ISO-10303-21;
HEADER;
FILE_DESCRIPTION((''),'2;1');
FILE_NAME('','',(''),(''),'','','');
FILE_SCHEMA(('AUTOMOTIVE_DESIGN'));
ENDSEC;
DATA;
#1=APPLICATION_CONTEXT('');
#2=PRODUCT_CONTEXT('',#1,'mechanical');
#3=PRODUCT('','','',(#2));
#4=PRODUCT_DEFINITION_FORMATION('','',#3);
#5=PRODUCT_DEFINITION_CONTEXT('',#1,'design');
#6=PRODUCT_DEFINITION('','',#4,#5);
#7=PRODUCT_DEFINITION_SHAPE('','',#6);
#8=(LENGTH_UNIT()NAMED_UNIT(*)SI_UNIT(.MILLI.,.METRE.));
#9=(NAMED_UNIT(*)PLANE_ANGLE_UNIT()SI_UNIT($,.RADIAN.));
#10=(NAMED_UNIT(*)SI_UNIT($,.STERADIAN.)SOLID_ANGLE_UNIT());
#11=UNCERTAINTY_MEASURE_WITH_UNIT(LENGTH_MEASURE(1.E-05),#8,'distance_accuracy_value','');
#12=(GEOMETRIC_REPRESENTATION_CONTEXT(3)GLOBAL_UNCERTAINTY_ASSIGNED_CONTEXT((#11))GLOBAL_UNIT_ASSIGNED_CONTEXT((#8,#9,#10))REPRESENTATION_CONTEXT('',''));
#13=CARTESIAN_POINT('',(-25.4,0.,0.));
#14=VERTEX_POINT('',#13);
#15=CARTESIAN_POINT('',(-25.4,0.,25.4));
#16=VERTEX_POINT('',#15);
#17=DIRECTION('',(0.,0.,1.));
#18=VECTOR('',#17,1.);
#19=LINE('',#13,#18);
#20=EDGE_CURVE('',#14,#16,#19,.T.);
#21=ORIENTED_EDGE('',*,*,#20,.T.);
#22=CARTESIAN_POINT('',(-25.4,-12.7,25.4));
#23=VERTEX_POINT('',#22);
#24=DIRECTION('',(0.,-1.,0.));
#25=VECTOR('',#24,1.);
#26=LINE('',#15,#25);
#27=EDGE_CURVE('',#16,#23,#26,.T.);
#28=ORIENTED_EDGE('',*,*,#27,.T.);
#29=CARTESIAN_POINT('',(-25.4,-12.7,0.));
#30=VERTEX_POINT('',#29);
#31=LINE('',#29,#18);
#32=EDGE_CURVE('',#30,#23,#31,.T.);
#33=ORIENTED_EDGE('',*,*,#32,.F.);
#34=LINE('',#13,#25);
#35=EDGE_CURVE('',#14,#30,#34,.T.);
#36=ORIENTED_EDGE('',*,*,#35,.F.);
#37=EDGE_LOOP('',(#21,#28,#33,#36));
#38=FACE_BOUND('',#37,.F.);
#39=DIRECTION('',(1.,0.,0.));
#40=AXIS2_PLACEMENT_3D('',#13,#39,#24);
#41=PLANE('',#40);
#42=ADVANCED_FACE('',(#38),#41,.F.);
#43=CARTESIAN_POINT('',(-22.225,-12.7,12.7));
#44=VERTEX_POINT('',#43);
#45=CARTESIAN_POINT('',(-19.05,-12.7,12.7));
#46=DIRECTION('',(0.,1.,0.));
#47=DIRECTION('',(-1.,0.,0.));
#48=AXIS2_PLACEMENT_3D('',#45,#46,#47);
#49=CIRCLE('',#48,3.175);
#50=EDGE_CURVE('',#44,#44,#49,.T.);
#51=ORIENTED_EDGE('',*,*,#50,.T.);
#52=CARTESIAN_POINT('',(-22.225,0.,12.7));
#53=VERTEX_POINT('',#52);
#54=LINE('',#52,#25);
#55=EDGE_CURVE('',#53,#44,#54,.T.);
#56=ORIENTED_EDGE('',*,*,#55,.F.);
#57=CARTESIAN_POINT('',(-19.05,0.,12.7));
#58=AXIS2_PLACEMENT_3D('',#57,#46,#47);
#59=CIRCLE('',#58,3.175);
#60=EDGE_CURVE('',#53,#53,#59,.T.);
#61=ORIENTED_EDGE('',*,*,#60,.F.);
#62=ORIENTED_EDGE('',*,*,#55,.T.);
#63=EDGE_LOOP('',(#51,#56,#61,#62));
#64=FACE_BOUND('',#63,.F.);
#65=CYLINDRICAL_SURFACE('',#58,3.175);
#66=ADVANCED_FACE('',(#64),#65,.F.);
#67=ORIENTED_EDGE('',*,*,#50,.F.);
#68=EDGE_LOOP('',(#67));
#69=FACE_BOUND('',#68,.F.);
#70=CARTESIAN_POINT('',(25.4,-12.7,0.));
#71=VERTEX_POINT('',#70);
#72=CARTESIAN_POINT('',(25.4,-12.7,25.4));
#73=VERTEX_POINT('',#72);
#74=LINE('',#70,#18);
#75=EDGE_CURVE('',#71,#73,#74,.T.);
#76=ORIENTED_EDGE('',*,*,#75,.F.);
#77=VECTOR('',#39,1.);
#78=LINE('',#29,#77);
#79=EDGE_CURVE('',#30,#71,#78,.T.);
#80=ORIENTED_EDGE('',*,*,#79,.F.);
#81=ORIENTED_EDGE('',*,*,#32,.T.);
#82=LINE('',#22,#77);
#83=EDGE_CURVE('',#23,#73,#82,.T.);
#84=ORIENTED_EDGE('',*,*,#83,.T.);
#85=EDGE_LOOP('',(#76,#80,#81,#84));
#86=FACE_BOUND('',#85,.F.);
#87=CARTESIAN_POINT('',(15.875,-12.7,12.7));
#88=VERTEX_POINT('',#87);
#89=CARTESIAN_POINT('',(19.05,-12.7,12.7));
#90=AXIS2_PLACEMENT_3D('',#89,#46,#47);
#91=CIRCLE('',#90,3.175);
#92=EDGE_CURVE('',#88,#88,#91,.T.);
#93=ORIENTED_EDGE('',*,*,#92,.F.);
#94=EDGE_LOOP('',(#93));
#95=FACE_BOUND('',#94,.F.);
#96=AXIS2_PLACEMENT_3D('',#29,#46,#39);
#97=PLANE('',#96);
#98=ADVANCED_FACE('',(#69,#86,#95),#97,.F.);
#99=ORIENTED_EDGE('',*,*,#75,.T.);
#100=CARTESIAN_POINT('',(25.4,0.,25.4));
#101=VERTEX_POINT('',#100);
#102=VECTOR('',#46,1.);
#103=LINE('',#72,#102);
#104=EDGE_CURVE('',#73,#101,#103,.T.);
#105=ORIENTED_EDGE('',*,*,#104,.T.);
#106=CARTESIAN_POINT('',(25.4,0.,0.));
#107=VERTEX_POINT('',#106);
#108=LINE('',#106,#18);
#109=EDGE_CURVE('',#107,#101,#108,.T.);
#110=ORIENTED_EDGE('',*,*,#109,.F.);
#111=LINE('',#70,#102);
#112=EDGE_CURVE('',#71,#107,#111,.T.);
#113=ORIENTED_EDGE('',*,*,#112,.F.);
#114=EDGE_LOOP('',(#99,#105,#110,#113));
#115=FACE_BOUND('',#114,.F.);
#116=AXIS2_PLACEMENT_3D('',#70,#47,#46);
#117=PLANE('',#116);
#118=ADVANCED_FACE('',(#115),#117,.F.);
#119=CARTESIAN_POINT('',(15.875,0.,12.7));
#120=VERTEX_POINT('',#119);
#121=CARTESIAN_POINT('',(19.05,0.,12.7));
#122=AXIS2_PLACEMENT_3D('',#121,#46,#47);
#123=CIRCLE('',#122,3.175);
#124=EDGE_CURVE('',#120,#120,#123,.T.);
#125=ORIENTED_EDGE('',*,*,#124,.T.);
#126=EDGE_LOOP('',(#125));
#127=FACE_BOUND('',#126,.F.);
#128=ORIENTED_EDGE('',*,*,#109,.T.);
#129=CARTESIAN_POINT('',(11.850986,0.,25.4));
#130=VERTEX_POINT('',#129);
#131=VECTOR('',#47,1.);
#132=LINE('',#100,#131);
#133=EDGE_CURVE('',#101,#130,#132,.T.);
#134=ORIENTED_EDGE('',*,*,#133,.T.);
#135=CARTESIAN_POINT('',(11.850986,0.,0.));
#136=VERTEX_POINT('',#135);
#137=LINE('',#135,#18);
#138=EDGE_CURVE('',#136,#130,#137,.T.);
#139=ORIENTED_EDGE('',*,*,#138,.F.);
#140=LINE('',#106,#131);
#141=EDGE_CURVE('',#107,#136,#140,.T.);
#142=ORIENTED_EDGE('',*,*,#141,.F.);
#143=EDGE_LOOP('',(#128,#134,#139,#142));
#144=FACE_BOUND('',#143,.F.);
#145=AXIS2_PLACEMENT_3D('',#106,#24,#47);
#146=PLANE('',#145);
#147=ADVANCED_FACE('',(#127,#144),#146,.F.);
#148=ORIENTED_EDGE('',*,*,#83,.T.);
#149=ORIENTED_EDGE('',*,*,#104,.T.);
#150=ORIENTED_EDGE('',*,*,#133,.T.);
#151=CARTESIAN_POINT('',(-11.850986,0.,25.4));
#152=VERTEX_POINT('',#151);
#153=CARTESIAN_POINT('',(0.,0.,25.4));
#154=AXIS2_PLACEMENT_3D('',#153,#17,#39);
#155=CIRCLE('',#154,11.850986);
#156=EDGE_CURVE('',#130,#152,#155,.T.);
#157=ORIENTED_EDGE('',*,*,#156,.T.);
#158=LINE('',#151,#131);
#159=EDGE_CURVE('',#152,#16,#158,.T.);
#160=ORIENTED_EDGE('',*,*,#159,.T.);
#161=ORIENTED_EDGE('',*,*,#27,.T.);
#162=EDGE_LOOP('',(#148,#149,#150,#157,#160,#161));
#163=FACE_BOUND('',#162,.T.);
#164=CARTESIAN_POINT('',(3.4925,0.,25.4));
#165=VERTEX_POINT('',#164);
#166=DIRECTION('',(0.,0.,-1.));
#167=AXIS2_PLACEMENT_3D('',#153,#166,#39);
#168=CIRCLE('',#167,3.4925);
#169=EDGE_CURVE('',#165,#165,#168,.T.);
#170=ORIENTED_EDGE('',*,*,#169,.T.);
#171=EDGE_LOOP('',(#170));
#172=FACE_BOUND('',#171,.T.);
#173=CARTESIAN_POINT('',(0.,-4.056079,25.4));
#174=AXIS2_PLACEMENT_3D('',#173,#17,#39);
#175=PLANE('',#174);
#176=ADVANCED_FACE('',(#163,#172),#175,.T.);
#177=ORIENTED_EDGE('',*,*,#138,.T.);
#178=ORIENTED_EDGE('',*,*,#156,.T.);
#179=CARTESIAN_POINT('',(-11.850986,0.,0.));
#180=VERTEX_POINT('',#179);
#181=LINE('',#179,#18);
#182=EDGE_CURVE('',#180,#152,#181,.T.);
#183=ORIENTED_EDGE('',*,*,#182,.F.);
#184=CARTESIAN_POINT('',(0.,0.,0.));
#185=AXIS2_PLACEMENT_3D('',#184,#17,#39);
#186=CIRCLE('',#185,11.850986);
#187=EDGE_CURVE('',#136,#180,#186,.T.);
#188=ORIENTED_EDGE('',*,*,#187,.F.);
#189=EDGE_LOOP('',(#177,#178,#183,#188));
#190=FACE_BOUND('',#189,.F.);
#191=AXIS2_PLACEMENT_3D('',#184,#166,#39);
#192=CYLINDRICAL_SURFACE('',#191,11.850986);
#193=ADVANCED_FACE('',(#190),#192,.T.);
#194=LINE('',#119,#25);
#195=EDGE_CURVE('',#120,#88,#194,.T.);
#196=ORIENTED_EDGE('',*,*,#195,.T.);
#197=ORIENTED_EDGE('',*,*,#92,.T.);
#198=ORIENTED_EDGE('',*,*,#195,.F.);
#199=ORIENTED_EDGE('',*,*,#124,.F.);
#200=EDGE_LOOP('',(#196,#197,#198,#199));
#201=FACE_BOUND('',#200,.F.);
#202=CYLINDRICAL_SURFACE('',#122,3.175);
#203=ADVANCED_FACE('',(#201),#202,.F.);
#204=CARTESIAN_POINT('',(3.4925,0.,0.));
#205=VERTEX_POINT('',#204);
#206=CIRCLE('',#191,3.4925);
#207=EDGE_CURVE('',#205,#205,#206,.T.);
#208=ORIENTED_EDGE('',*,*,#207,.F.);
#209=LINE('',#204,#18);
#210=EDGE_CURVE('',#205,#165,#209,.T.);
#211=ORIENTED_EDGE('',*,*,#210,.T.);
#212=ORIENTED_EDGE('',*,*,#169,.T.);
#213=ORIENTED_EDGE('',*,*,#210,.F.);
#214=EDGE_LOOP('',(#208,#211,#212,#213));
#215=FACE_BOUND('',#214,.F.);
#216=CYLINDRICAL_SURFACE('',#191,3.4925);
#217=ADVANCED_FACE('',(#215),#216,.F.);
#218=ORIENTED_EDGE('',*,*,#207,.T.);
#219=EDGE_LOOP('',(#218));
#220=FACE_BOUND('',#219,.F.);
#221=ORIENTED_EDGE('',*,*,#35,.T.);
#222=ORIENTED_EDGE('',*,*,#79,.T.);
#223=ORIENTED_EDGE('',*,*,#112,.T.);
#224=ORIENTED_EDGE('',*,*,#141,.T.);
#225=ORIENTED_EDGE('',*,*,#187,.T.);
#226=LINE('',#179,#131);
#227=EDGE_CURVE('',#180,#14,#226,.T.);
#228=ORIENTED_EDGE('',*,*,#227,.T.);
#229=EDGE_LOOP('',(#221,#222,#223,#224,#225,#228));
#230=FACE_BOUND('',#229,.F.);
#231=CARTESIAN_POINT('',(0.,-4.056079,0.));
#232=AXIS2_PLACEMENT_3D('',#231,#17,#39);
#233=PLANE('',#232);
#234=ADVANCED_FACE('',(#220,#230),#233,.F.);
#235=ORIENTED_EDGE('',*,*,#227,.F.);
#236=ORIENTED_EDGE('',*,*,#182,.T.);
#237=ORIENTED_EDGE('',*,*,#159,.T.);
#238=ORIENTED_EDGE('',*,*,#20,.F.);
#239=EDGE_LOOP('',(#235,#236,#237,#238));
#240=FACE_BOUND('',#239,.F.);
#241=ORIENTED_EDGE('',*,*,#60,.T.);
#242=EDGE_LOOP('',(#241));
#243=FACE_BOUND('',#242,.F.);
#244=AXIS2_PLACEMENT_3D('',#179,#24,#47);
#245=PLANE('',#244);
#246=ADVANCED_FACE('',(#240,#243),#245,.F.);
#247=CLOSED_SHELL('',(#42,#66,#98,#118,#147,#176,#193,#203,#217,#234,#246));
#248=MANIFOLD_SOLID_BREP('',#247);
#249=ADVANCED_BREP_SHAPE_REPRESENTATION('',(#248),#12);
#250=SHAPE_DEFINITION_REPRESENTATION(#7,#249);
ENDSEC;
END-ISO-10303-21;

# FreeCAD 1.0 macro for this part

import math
import FreeCAD as App
import Part
import Sketcher
from FreeCAD import Vector
Q = App.Units.Quantity

doc = App.newDocument("Part")
params = doc.addObject("Spreadsheet::Sheet", "Params")
for row, (alias, value) in enumerate([
    ("sketch1_width", "2 in"),
    ("sketch1_diameter", "0.275 in"),
    ("sketch1_height", "0.5 in"),
    ("pad1_length", "1 in"),
    ("sketch2_diameter", "0.25 in"),
    ("pocket1_length", "1 in"),
], start=1):
    params.set(f"A{row}", alias)
    params.set(f"B{row}", "=" + value)
    params.setAlias(f"B{row}", alias)

body = doc.addObject("PartDesign::Body", "Body")

# Sketch on XY plane
sketch1 = doc.addObject("Sketcher::SketchObject", "Sketch")
body.addObject(sketch1)
sketch1.AttachmentSupport = (doc.XY_Plane, [""])
sketch1.MapMode = "FlatFace"
sketch1.addGeometry([
    Part.LineSegment(Vector(25.4, 0, 0), Vector(11.9, 0, 0)),  # 0
    Part.ArcOfCircle(Part.Circle(Vector(0, 0, 0), Vector(0, 0, 1), 11.9), math.radians(0), math.radians(180)),  # 1
    Part.LineSegment(Vector(-11.9, 0, 0), Vector(-25.4, 0, 0)),  # 2
    Part.LineSegment(Vector(-25.4, 0, 0), Vector(-25.4, -12.7, 0)),  # 3
    Part.LineSegment(Vector(-25.4, -12.7, 0), Vector(25.4, -12.7, 0)),  # 4
    Part.LineSegment(Vector(25.4, -12.7, 0), Vector(25.4, 0, 0)),  # 5
    Part.Circle(Vector(0, 0, 0), Vector(0, 0, 1), 3.5),  # 6
], False)
sketch1.addConstraint([
    Sketcher.Constraint("Coincident", 0, 2, 1, 1),
    Sketcher.Constraint("Coincident", 1, 2, 2, 1),
    Sketcher.Constraint("Coincident", 2, 2, 3, 1),
    Sketcher.Constraint("Coincident", 3, 2, 4, 1),
    Sketcher.Constraint("Coincident", 4, 2, 5, 1),
    Sketcher.Constraint("Coincident", 5, 2, 0, 1),
    Sketcher.Constraint("Horizontal", 0),
    Sketcher.Constraint("Horizontal", 2),
    Sketcher.Constraint("Vertical", 3),
    Sketcher.Constraint("Horizontal", 4),
    Sketcher.Constraint("Vertical", 5),
    Sketcher.Constraint("Coincident", 1, 3, -1, 1),
    Sketcher.Constraint("Coincident", 6, 3, -1, 1),
    Sketcher.Constraint("Symmetric", 2, 2, 5, 2, -1, 1),
    Sketcher.Constraint("PointOnObject", 0, 2, -1),
    Sketcher.Constraint("DistanceX", 4, 1, 4, 2, Q("2 in")),
    Sketcher.Constraint("Diameter", 6, Q("0.275 in")),
    Sketcher.Constraint("DistanceY", 3, 2, 3, 1, Q("0.5 in")),
    Sketcher.Constraint("Radius", 1, Q("11.850986 mm")),
])
sketch1.setExpression("Constraints[15]", "Params.sketch1_width")
sketch1.setExpression("Constraints[16]", "Params.sketch1_diameter")
sketch1.setExpression("Constraints[17]", "Params.sketch1_height")
pad1 = doc.addObject("PartDesign::Pad", "Pad")
body.addObject(pad1)
pad1.Profile = sketch1
pad1.setExpression("Length", "Params.pad1_length")

# Sketch on XZ plane
sketch2 = doc.addObject("Sketcher::SketchObject", "Sketch001")
body.addObject(sketch2)
sketch2.AttachmentSupport = (doc.XZ_Plane, [""])
sketch2.MapMode = "FlatFace"
sketch2.addGeometry([
    Part.Circle(Vector(-19.1, 12.7, 0), Vector(0, 0, 1), 3.2),
    Part.Circle(Vector(19.1, 12.7, 0), Vector(0, 0, 1), 3.2),
], False)
sketch2.addConstraint([
    Sketcher.Constraint("Equal", 0, 1),
    Sketcher.Constraint("Symmetric", 0, 3, 1, 3, -2),
    Sketcher.Constraint("Diameter", 0, Q("0.25 in")),
    Sketcher.Constraint("DistanceY", -1, 1, 0, 3, Q("0.5 in")),
    Sketcher.Constraint("DistanceX", 0, 3, 1, 3, Q("1.5 in")),
])
sketch2.setExpression("Constraints[2]", "Params.sketch2_diameter")
pocket1 = doc.addObject("PartDesign::Pocket", "Pocket")
body.addObject(pocket1)
pocket1.Profile = sketch2
pocket1.setExpression("Length", "Params.pocket1_length")
pocket1.Reversed = True

doc.recompute()
